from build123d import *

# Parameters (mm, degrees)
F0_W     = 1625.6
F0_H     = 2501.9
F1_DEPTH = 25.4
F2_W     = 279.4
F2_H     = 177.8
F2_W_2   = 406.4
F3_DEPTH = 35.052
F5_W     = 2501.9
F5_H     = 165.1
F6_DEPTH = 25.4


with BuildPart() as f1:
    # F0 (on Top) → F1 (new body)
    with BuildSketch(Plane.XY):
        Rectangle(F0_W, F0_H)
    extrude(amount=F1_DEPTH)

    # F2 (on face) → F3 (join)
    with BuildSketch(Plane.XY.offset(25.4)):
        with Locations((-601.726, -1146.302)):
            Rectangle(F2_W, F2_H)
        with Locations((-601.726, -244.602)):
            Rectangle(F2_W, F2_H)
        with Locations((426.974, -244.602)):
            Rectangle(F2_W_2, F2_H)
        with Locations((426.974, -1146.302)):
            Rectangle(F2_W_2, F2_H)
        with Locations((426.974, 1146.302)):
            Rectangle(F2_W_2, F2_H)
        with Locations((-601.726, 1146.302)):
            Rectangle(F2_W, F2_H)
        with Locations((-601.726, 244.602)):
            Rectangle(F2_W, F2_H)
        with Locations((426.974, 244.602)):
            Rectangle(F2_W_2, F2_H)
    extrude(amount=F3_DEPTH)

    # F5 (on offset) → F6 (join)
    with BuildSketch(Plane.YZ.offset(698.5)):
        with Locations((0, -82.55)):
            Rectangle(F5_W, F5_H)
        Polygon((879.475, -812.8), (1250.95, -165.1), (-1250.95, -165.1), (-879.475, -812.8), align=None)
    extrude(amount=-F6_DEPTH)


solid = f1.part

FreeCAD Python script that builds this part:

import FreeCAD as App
import Part
import Sketcher
from FreeCAD import Vector
Q = App.Units.Quantity

doc = App.newDocument("Part")
body = doc.addObject("PartDesign::Body", "Body")

# Sketch on XY plane
sketch1 = body.newObject("Sketcher::SketchObject", "Sketch")
sketch1.AttachmentSupport = (doc.getObject("XY_Plane"), [""])
sketch1.MapMode = "FlatFace"
sketch1.addGeometry([
    Part.LineSegment(Vector(-813, 1251, 0), Vector(-813, -1251, 0)),
    Part.LineSegment(Vector(-813, -1251, 0), Vector(813, -1251, 0)),
    Part.LineSegment(Vector(813, -1251, 0), Vector(813, 1251, 0)),
    Part.LineSegment(Vector(813, 1251, 0), Vector(-813, 1251, 0)),
], False)
sketch1.addConstraint([
    Sketcher.Constraint("Coincident", 0, 2, 1, 1),
    Sketcher.Constraint("Coincident", 1, 2, 2, 1),
    Sketcher.Constraint("Coincident", 2, 2, 3, 1),
    Sketcher.Constraint("Coincident", 3, 2, 0, 1),
    Sketcher.Constraint("Vertical", 0),
    Sketcher.Constraint("Horizontal", 1),
    Sketcher.Constraint("Vertical", 2),
    Sketcher.Constraint("Horizontal", 3),
    Sketcher.Constraint("Symmetric", 0, 2, 2, 2, -1, 1),
    Sketcher.Constraint("DistanceX", 1, 1, 1, 2, Q("64 in")),
    Sketcher.Constraint("DistanceY", 0, 2, 0, 1, Q("98.5 in")),
])
pad1 = body.newObject("PartDesign::Pad", "Pad")
pad1.Profile = sketch1
pad1.Length = Q("1 in")

# Sketch on XY plane
sketch2 = body.newObject("Sketcher::SketchObject", "Sketch001")
sketch2.AttachmentSupport = (doc.getObject("XY_Plane"), [""])
sketch2.MapMode = "FlatFace"
sketch2.AttachmentOffset = App.Placement(Vector(0, 0, 1 * 25.4), App.Rotation())
sketch2.addGeometry([
    Part.LineSegment(Vector(-741, -1057, 0), Vector(-741, -1235, 0)),  # 0
    Part.LineSegment(Vector(-741, -1235, 0), Vector(-462, -1235, 0)),  # 1
    Part.LineSegment(Vector(-462, -1235, 0), Vector(-462, -1057, 0)),  # 2
    Part.LineSegment(Vector(-462, -1057, 0), Vector(-741, -1057, 0)),  # 3
    Part.LineSegment(Vector(-741, -156, 0), Vector(-741, -334, 0)),  # 4
    Part.LineSegment(Vector(-741, -334, 0), Vector(-462, -334, 0)),  # 5
    Part.LineSegment(Vector(-462, -334, 0), Vector(-462, -156, 0)),  # 6
    Part.LineSegment(Vector(-462, -156, 0), Vector(-741, -156, 0)),  # 7
    Part.LineSegment(Vector(224, -156, 0), Vector(224, -334, 0)),  # 8
    Part.LineSegment(Vector(224, -334, 0), Vector(630, -334, 0)),  # 9
    Part.LineSegment(Vector(630, -334, 0), Vector(630, -156, 0)),  # 10
    Part.LineSegment(Vector(630, -156, 0), Vector(224, -156, 0)),  # 11
    Part.LineSegment(Vector(224, -1057, 0), Vector(224, -1235, 0)),  # 12
    Part.LineSegment(Vector(224, -1235, 0), Vector(630, -1235, 0)),  # 13
    Part.LineSegment(Vector(630, -1235, 0), Vector(630, -1057, 0)),  # 14
    Part.LineSegment(Vector(630, -1057, 0), Vector(224, -1057, 0)),  # 15
    Part.LineSegment(Vector(224, 1235, 0), Vector(224, 1057, 0)),  # 16
    Part.LineSegment(Vector(224, 1057, 0), Vector(630, 1057, 0)),  # 17
    Part.LineSegment(Vector(630, 1057, 0), Vector(630, 1235, 0)),  # 18
    Part.LineSegment(Vector(630, 1235, 0), Vector(224, 1235, 0)),  # 19
    Part.LineSegment(Vector(-741, 1235, 0), Vector(-741, 1057, 0)),  # 20
    Part.LineSegment(Vector(-741, 1057, 0), Vector(-462, 1057, 0)),  # 21
    Part.LineSegment(Vector(-462, 1057, 0), Vector(-462, 1235, 0)),  # 22
    Part.LineSegment(Vector(-462, 1235, 0), Vector(-741, 1235, 0)),  # 23
    Part.LineSegment(Vector(-741, 334, 0), Vector(-741, 156, 0)),  # 24
    Part.LineSegment(Vector(-741, 156, 0), Vector(-462, 156, 0)),  # 25
    Part.LineSegment(Vector(-462, 156, 0), Vector(-462, 334, 0)),  # 26
    Part.LineSegment(Vector(-462, 334, 0), Vector(-741, 334, 0)),  # 27
    Part.LineSegment(Vector(224, 334, 0), Vector(224, 156, 0)),  # 28
    Part.LineSegment(Vector(224, 156, 0), Vector(630, 156, 0)),  # 29
    Part.LineSegment(Vector(630, 156, 0), Vector(630, 334, 0)),  # 30
    Part.LineSegment(Vector(630, 334, 0), Vector(224, 334, 0)),  # 31
], False)
sketch2.addConstraint([
    Sketcher.Constraint("Coincident", 0, 2, 1, 1),
    Sketcher.Constraint("Coincident", 1, 2, 2, 1),
    Sketcher.Constraint("Coincident", 2, 2, 3, 1),
    Sketcher.Constraint("Coincident", 3, 2, 0, 1),
    Sketcher.Constraint("Coincident", 4, 2, 5, 1),
    Sketcher.Constraint("Coincident", 5, 2, 6, 1),
    Sketcher.Constraint("Coincident", 6, 2, 7, 1),
    Sketcher.Constraint("Coincident", 7, 2, 4, 1),
    Sketcher.Constraint("Coincident", 8, 2, 9, 1),
    Sketcher.Constraint("Coincident", 9, 2, 10, 1),
    Sketcher.Constraint("Coincident", 10, 2, 11, 1),
    Sketcher.Constraint("Coincident", 11, 2, 8, 1),
    Sketcher.Constraint("Coincident", 12, 2, 13, 1),
    Sketcher.Constraint("Coincident", 13, 2, 14, 1),
    Sketcher.Constraint("Coincident", 14, 2, 15, 1),
    Sketcher.Constraint("Coincident", 15, 2, 12, 1),
    Sketcher.Constraint("Coincident", 16, 2, 17, 1),
    Sketcher.Constraint("Coincident", 17, 2, 18, 1),
    Sketcher.Constraint("Coincident", 18, 2, 19, 1),
    Sketcher.Constraint("Coincident", 19, 2, 16, 1),
    Sketcher.Constraint("Coincident", 20, 2, 21, 1),
    Sketcher.Constraint("Coincident", 21, 2, 22, 1),
    Sketcher.Constraint("Coincident", 22, 2, 23, 1),
    Sketcher.Constraint("Coincident", 23, 2, 20, 1),
    Sketcher.Constraint("Coincident", 24, 2, 25, 1),
    Sketcher.Constraint("Coincident", 25, 2, 26, 1),
    Sketcher.Constraint("Coincident", 26, 2, 27, 1),
    Sketcher.Constraint("Coincident", 27, 2, 24, 1),
    Sketcher.Constraint("Coincident", 28, 2, 29, 1),
    Sketcher.Constraint("Coincident", 29, 2, 30, 1),
    Sketcher.Constraint("Coincident", 30, 2, 31, 1),
    Sketcher.Constraint("Coincident", 31, 2, 28, 1),
    Sketcher.Constraint("Vertical", 0),
    Sketcher.Constraint("Horizontal", 1),
    Sketcher.Constraint("Vertical", 2),
    Sketcher.Constraint("Horizontal", 3),
    Sketcher.Constraint("Vertical", 4),
    Sketcher.Constraint("Horizontal", 5),
    Sketcher.Constraint("Vertical", 6),
    Sketcher.Constraint("Horizontal", 7),
    Sketcher.Constraint("Vertical", 8),
    Sketcher.Constraint("Horizontal", 9),
    Sketcher.Constraint("Vertical", 10),
    Sketcher.Constraint("Horizontal", 11),
    Sketcher.Constraint("Vertical", 12),
    Sketcher.Constraint("Horizontal", 13),
    Sketcher.Constraint("Vertical", 14),
    Sketcher.Constraint("Horizontal", 15),
    Sketcher.Constraint("Vertical", 16),
    Sketcher.Constraint("Horizontal", 17),
    Sketcher.Constraint("Vertical", 18),
    Sketcher.Constraint("Horizontal", 19),
    Sketcher.Constraint("Vertical", 20),
    Sketcher.Constraint("Horizontal", 21),
    Sketcher.Constraint("Vertical", 22),
    Sketcher.Constraint("Horizontal", 23),
    Sketcher.Constraint("Vertical", 24),
    Sketcher.Constraint("Horizontal", 25),
    Sketcher.Constraint("Vertical", 26),
    Sketcher.Constraint("Horizontal", 27),
    Sketcher.Constraint("Vertical", 28),
    Sketcher.Constraint("Horizontal", 29),
    Sketcher.Constraint("Vertical", 30),
    Sketcher.Constraint("Horizontal", 31),
    Sketcher.Constraint("Symmetric", 15, 2, 16, 2, -1),
    Sketcher.Constraint("Symmetric", 13, 2, 18, 2, -1),
    Sketcher.Constraint("Symmetric", 3, 2, 20, 2, -1),
    Sketcher.Constraint("Symmetric", 1, 2, 22, 2, -1),
    Sketcher.Constraint("Symmetric", 7, 2, 24, 2, -1),
    Sketcher.Constraint("Symmetric", 5, 2, 26, 2, -1),
    Sketcher.Constraint("Symmetric", 11, 2, 28, 2, -1),
    Sketcher.Constraint("Symmetric", 9, 2, 30, 2, -1),
    Sketcher.Constraint("Horizontal", 5, 2, 8, 2),
    Sketcher.Constraint("Horizontal", 7, 2, 10, 2),
    Sketcher.Constraint("Horizontal", 1, 2, 12, 2),
    Sketcher.Constraint("Horizontal", 3, 2, 14, 2),
    Sketcher.Constraint("Vertical", 3, 2, 4, 2),
    Sketcher.Constraint("Vertical", 2, 2, 5, 2),
    Sketcher.Constraint("Vertical", 11, 2, 12, 2),
    Sketcher.Constraint("Vertical", 10, 2, 13, 2),
    Sketcher.Constraint("Equal", 2, 4),
    Sketcher.Constraint("DistanceX", 1, 1, 1, 2, Q("11 in")),
    Sketcher.Constraint("DistanceX", 9, 1, 9, 2, Q("16 in")),
    Sketcher.Constraint("DistanceY", 0, 2, 0, 1, Q("7 in")),
    Sketcher.Constraint("DistanceX", 5, 2, 8, 2, Q("27 in")),
    Sketcher.Constraint("DistanceY", 3, 2, 4, 2, Q("28.5 in")),
    Sketcher.Constraint("DistanceX", 0, 2, -1, 1, Q("29.19 in")),
    Sketcher.Constraint("DistanceY", 0, 2, -1, 1, Q("48.63 in")),
])
pad2 = body.newObject("PartDesign::Pad", "Pad001")
pad2.Profile = sketch2
pad2.Length = Q("1.38 in")

# Sketch on YZ plane
sketch3 = body.newObject("Sketcher::SketchObject", "Sketch002")
sketch3.AttachmentSupport = (doc.getObject("YZ_Plane"), [""])
sketch3.MapMode = "FlatFace"
sketch3.AttachmentOffset = App.Placement(Vector(0, 0, 27.5 * 25.4), App.Rotation())
sketch3.addGeometry([
    Part.LineSegment(Vector(-1251, 0, 0), Vector(-1251, -165, 0)),  # 0
    Part.LineSegment(Vector(-1251, -165, 0), Vector(-879, -813, 0)),  # 1
    Part.LineSegment(Vector(-879, -813, 0), Vector(879, -813, 0)),  # 2
    Part.LineSegment(Vector(879, -813, 0), Vector(1251, -165, 0)),  # 3
    Part.LineSegment(Vector(1251, -165, 0), Vector(1251, 0, 0)),  # 4
    Part.LineSegment(Vector(1251, 0, 0), Vector(-1251, 0, 0)),  # 5
], False)
sketch3.addConstraint([
    Sketcher.Constraint("Coincident", 0, 2, 1, 1),
    Sketcher.Constraint("Coincident", 1, 2, 2, 1),
    Sketcher.Constraint("Coincident", 2, 2, 3, 1),
    Sketcher.Constraint("Coincident", 3, 2, 4, 1),
    Sketcher.Constraint("Coincident", 4, 2, 5, 1),
    Sketcher.Constraint("Coincident", 5, 2, 0, 1),
    Sketcher.Constraint("Vertical", 0),
    Sketcher.Constraint("Horizontal", 2),
    Sketcher.Constraint("Vertical", 4),
    Sketcher.Constraint("Horizontal", 5),
    Sketcher.Constraint("Symmetric", 4, 2, 5, 2, -1, 1),
    Sketcher.Constraint("Horizontal", 0, 2, 3, 2),
    Sketcher.Constraint("Equal", 1, 3),
    Sketcher.Constraint("DistanceX", 5, 2, 5, 1, Q("98.5 in")),
    Sketcher.Constraint("DistanceY", 0, 2, 0, 1, Q("6.5 in")),
    Sketcher.Constraint("DistanceY", 1, 2, -1, 1, Q("32 in")),
    Sketcher.Constraint("DistanceX", 2, 1, 2, 2, Q("69.25 in")),
])
pad3 = body.newObject("PartDesign::Pad", "Pad002")
pad3.Profile = sketch3
pad3.Length = Q("1 in")
pad3.Reversed = True

doc.recompute()
